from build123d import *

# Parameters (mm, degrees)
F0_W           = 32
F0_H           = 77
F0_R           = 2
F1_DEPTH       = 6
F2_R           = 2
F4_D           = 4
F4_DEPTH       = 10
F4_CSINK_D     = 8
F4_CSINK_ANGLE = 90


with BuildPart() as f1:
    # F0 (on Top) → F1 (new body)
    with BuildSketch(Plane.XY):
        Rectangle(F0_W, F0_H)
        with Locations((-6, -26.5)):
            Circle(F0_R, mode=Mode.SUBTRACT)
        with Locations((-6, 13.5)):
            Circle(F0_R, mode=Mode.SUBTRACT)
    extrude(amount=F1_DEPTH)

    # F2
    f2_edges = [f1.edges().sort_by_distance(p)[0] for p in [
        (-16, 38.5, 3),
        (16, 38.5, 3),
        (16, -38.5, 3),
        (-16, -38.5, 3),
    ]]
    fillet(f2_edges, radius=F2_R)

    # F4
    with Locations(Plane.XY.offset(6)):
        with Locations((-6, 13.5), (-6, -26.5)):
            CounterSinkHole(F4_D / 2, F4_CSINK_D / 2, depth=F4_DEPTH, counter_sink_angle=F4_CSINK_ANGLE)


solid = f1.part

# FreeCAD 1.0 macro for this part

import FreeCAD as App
import Part
import Sketcher
from FreeCAD import Vector
Q = App.Units.Quantity


def edges_at(feature, points):
    """Names of the edges that pass closest to the given points."""
    edges = feature.Shape.Edges
    near = lambda p: min(range(len(edges)), key=lambda i: edges[i].distToShape(Part.Vertex(*p))[0])
    return sorted({f"Edge{near(p) + 1}" for p in points})


def add_polygon(sketch, points):
    """Adds a closed chain of lines whose ends are joined by coincident constraints."""
    first, n = sketch.GeometryCount, len(points)
    for a, b in zip(points, points[1:] + points[:1]):
        sketch.addGeometry(Part.LineSegment(App.Vector(*a, 0), App.Vector(*b, 0)), False)
    for i in range(n):
        sketch.addConstraint(Sketcher.Constraint("Coincident", first + i, 2, first + (i + 1) % n, 1))

doc = App.newDocument("Part")
body = doc.addObject("PartDesign::Body", "Body")

sketch1 = body.newObject("Sketcher::SketchObject", "Sketch")
sketch1.AttachmentSupport = (doc.getObject("XY_Plane"), [""])
sketch1.MapMode = "FlatFace"
add_polygon(sketch1, [(-16, 38.5), (-16, -38.5), (16, -38.5), (16, 38.5)])
sketch1.addGeometry(Part.Circle(Vector(-6, -26.5, 0), Vector(0, 0, 1), 2), False)
sketch1.addGeometry(Part.Circle(Vector(-6, 13.5, 0), Vector(0, 0, 1), 2), False)
sketch1.addConstraint(Sketcher.Constraint("Vertical", 0))
sketch1.addConstraint(Sketcher.Constraint("Horizontal", 1))
sketch1.addConstraint(Sketcher.Constraint("Vertical", 2))
sketch1.addConstraint(Sketcher.Constraint("Horizontal", 3))
sketch1.addConstraint(Sketcher.Constraint("Equal", 4, 5))
sketch1.addConstraint(Sketcher.Constraint("Symmetric", 0, 2, 2, 2, -1, 1))
sketch1.addConstraint(Sketcher.Constraint("Vertical", 4, 3, 5, 3))
sketch1.addConstraint(Sketcher.Constraint("Diameter", 4, Q("4 mm")))
sketch1.addConstraint(Sketcher.Constraint("DistanceX", 1, 1, 1, 2, Q("32 mm")))
sketch1.addConstraint(Sketcher.Constraint("DistanceY", 0, 2, 0, 1, Q("77 mm")))
sketch1.addConstraint(Sketcher.Constraint("DistanceX", 4, 3, -1, 1, Q("6 mm")))
sketch1.addConstraint(Sketcher.Constraint("DistanceY", 4, 3, 5, 3, Q("40 mm")))
sketch1.addConstraint(Sketcher.Constraint("DistanceY", 0, 2, 4, 3, Q("12 mm")))
pad1 = body.newObject("PartDesign::Pad", "Pad")
pad1.Profile = sketch1
pad1.Length = 6
doc.recompute()

fillet = body.newObject("PartDesign::Fillet", "Fillet")
fillet.Base = (pad1, edges_at(pad1, [
    (-16, 38.5, 3),
    (16, 38.5, 3),
    (16, -38.5, 3),
    (-16, -38.5, 3),
]))
fillet.Radius = 2

sketch2 = body.newObject("Sketcher::SketchObject", "Sketch001")
sketch2.AttachmentSupport = (doc.getObject("XY_Plane"), [""])
sketch2.MapMode = "FlatFace"
sketch2.AttachmentOffset = App.Placement(Vector(0, 0, 6), App.Rotation())
sketch2.addGeometry(Part.Circle(Vector(-6, 13.5, 0), Vector(0, 0, 1), 2), False)
sketch2.addGeometry(Part.Circle(Vector(-6, -26.5, 0), Vector(0, 0, 1), 2), False)
sketch2.addConstraint(Sketcher.Constraint("Equal", 0, 1))
sketch2.addConstraint(Sketcher.Constraint("Vertical", 0, 3, 1, 3))
sketch2.addConstraint(Sketcher.Constraint("Diameter", 0, Q("4 mm")))
sketch2.addConstraint(Sketcher.Constraint("DistanceX", 0, 3, -1, 1, Q("6 mm")))
sketch2.addConstraint(Sketcher.Constraint("DistanceY", 1, 3, 0, 3, Q("40 mm")))
sketch2.addConstraint(Sketcher.Constraint("DistanceY", -1, 1, 0, 3, Q("13.5 mm")))
doc.recompute()
hole = body.newObject("PartDesign::Hole", "Hole")
hole.Profile = sketch2
hole.ThreadType = "None"
hole.Diameter = 4
hole.DepthType = "Dimension"
hole.Depth = 10
hole.DrillPoint = "Flat"
hole.HoleCutType = "Countersink"
hole.HoleCutDiameter = 8
hole.HoleCutCountersinkAngle = 90

doc.recompute()
